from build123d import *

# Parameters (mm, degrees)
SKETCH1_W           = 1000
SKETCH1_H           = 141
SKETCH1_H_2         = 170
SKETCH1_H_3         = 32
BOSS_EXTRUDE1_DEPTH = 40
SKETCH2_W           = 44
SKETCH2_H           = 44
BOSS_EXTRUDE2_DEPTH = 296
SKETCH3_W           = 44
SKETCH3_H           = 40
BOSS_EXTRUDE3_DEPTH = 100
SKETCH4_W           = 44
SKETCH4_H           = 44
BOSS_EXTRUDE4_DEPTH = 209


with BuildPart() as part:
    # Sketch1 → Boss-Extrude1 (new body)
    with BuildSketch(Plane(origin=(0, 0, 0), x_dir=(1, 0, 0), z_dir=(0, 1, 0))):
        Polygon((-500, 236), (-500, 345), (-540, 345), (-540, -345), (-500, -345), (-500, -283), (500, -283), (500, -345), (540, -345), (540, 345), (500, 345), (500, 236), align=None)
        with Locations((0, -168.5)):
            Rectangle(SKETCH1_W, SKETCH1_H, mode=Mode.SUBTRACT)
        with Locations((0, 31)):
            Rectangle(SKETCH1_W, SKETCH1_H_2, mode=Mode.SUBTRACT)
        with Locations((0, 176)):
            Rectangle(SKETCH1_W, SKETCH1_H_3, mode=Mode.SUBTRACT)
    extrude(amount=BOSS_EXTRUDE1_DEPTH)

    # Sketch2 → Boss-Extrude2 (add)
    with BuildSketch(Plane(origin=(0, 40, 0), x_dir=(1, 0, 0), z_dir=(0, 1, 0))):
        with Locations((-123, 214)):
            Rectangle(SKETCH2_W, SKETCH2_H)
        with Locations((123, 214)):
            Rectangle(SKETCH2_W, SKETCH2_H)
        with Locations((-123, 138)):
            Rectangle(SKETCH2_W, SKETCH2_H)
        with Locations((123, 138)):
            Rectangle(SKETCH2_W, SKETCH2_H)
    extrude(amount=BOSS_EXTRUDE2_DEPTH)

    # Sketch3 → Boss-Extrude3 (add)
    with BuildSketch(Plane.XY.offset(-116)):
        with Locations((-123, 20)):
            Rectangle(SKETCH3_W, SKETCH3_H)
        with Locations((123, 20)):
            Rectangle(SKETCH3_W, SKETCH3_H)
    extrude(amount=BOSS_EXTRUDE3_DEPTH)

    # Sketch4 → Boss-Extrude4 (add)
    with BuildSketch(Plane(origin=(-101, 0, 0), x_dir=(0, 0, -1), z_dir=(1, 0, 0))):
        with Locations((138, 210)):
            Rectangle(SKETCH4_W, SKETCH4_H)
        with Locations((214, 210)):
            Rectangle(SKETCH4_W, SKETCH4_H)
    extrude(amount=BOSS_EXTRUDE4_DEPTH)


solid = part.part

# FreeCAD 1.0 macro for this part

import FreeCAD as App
import Part
import Sketcher
Q = App.Units.Quantity


def add_polygon(sketch, points):
    """Adds a closed chain of lines whose ends are joined by coincident constraints."""
    first, n = sketch.GeometryCount, len(points)
    for a, b in zip(points, points[1:] + points[:1]):
        sketch.addGeometry(Part.LineSegment(App.Vector(*a, 0), App.Vector(*b, 0)), False)
    for i in range(n):
        sketch.addConstraint(Sketcher.Constraint("Coincident", first + i, 2, first + (i + 1) % n, 1))

doc = App.newDocument("Part")
body = doc.addObject("PartDesign::Body", "Body")

sketch1 = body.newObject("Sketcher::SketchObject", "Sketch")
sketch1.AttachmentSupport = (doc.getObject("XZ_Plane"), [""])
sketch1.MapMode = "FlatFace"
add_polygon(sketch1, [(-500, -236), (-500, -345), (-540, -345), (-540, 345), (-500, 345), (-500, 283), (500, 283), (500, 345), (540, 345), (540, -345), (500, -345), (500, -236)])
add_polygon(sketch1, [(500, 239), (-500, 239), (-500, 98), (500, 98)])
add_polygon(sketch1, [(500, 54), (-500, 54), (-500, -116), (500, -116)])
add_polygon(sketch1, [(500, -160), (-500, -160), (-500, -192), (500, -192)])
sketch1.addConstraint([
    Sketcher.Constraint("Vertical", 0),
    Sketcher.Constraint("Horizontal", 1),
    Sketcher.Constraint("Vertical", 2),
    Sketcher.Constraint("Horizontal", 3),
    Sketcher.Constraint("Vertical", 4),
    Sketcher.Constraint("Horizontal", 5),
    Sketcher.Constraint("Vertical", 6),
    Sketcher.Constraint("Horizontal", 7),
    Sketcher.Constraint("Vertical", 8),
    Sketcher.Constraint("Horizontal", 9),
    Sketcher.Constraint("Vertical", 10),
    Sketcher.Constraint("Horizontal", 11),
    Sketcher.Constraint("Horizontal", 12),
    Sketcher.Constraint("Vertical", 13),
    Sketcher.Constraint("Horizontal", 14),
    Sketcher.Constraint("Vertical", 15),
    Sketcher.Constraint("Horizontal", 16),
    Sketcher.Constraint("Vertical", 17),
    Sketcher.Constraint("Horizontal", 18),
    Sketcher.Constraint("Vertical", 19),
    Sketcher.Constraint("Horizontal", 20),
    Sketcher.Constraint("Vertical", 21),
    Sketcher.Constraint("Horizontal", 22),
    Sketcher.Constraint("Vertical", 23),
    Sketcher.Constraint("Symmetric", 0, 2, 6, 2, -1, 1),
    Sketcher.Constraint("Symmetric", 2, 2, 8, 2, -1, 1),
    Sketcher.Constraint("Symmetric", 3, 2, 6, 2, -2),
    Sketcher.Constraint("Vertical", 6, 2, 9, 2),
    Sketcher.Constraint("Vertical", 11, 2, 12, 2),
    Sketcher.Constraint("Vertical", 10, 2, 14, 2),
    Sketcher.Constraint("Vertical", 13, 2, 16, 2),
    Sketcher.Constraint("Vertical", 15, 2, 18, 2),
    Sketcher.Constraint("Vertical", 17, 2, 20, 2),
    Sketcher.Constraint("Vertical", 19, 2, 22, 2),
    Sketcher.Constraint("DistanceX", 1, 2, 1, 1, Q("40 mm")),
    Sketcher.Constraint("DistanceX", 5, 1, 5, 2, Q("1000 mm")),
    Sketcher.Constraint("DistanceY", 0, 2, 0, 1, Q("109 mm")),
    Sketcher.Constraint("DistanceY", 2, 1, 2, 2, Q("690 mm")),
    Sketcher.Constraint("DistanceY", 4, 2, 4, 1, Q("62 mm")),
    Sketcher.Constraint("DistanceY", 13, 2, 13, 1, Q("141 mm")),
    Sketcher.Constraint("DistanceY", 17, 2, 17, 1, Q("170 mm")),
    Sketcher.Constraint("DistanceY", 21, 2, 21, 1, Q("32 mm")),
    Sketcher.Constraint("DistanceY", -1, 1, 12, 2, Q("239 mm")),
    Sketcher.Constraint("DistanceY", -1, 1, 16, 2, Q("54 mm")),
    Sketcher.Constraint("DistanceY", 20, 2, -1, 1, Q("160 mm")),
])
pad1 = body.newObject("PartDesign::Pad", "Pad")
pad1.Profile = sketch1
pad1.Length = 40
pad1.Reversed = True

sketch2 = body.newObject("Sketcher::SketchObject", "Sketch001")
sketch2.AttachmentSupport = (doc.getObject("XZ_Plane"), [""])
sketch2.MapMode = "FlatFace"
sketch2.AttachmentOffset = App.Placement(App.Vector(0, 0, -40), App.Rotation())
add_polygon(sketch2, [(-145, -236), (-145, -192), (-101, -192), (-101, -236)])
add_polygon(sketch2, [(101, -236), (101, -192), (145, -192), (145, -236)])
add_polygon(sketch2, [(-145, -160), (-145, -116), (-101, -116), (-101, -160)])
add_polygon(sketch2, [(101, -160), (101, -116), (145, -116), (145, -160)])
sketch2.addConstraint([
    Sketcher.Constraint("Vertical", 0),
    Sketcher.Constraint("Horizontal", 1),
    Sketcher.Constraint("Vertical", 2),
    Sketcher.Constraint("Horizontal", 3),
    Sketcher.Constraint("Vertical", 4),
    Sketcher.Constraint("Horizontal", 5),
    Sketcher.Constraint("Vertical", 6),
    Sketcher.Constraint("Horizontal", 7),
    Sketcher.Constraint("Vertical", 8),
    Sketcher.Constraint("Horizontal", 9),
    Sketcher.Constraint("Vertical", 10),
    Sketcher.Constraint("Horizontal", 11),
    Sketcher.Constraint("Vertical", 12),
    Sketcher.Constraint("Horizontal", 13),
    Sketcher.Constraint("Vertical", 14),
    Sketcher.Constraint("Horizontal", 15),
    Sketcher.Constraint("Symmetric", 1, 2, 4, 2, -2),
    Sketcher.Constraint("Symmetric", 3, 2, 6, 2, -2),
    Sketcher.Constraint("Symmetric", 9, 2, 12, 2, -2),
    Sketcher.Constraint("Symmetric", 11, 2, 14, 2, -2),
    Sketcher.Constraint("Vertical", 3, 2, 8, 2),
    Sketcher.Constraint("Vertical", 2, 2, 9, 2),
    Sketcher.Constraint("Equal", 15, 0),
    Sketcher.Constraint("Equal", 6, 8),
    Sketcher.Constraint("DistanceX", 1, 1, 1, 2, Q("44 mm")),
    Sketcher.Constraint("DistanceX", 0, 2, -1, 1, Q("145 mm")),
    Sketcher.Constraint("DistanceY", 0, 2, -1, 1, Q("192 mm")),
    Sketcher.Constraint("DistanceY", 8, 2, -1, 1, Q("116 mm")),
])
pad2 = body.newObject("PartDesign::Pad", "Pad001")
pad2.Profile = sketch2
pad2.Length = 296
pad2.Reversed = True

sketch3 = body.newObject("Sketcher::SketchObject", "Sketch002")
sketch3.AttachmentSupport = (doc.getObject("XY_Plane"), [""])
sketch3.MapMode = "FlatFace"
sketch3.AttachmentOffset = App.Placement(App.Vector(0, 0, -116), App.Rotation())
add_polygon(sketch3, [(-145, 40), (-145, 0), (-101, 0), (-101, 40)])
add_polygon(sketch3, [(101, 40), (101, 0), (145, 0), (145, 40)])
sketch3.addConstraint([
    Sketcher.Constraint("Vertical", 0),
    Sketcher.Constraint("Horizontal", 1),
    Sketcher.Constraint("Vertical", 2),
    Sketcher.Constraint("Horizontal", 3),
    Sketcher.Constraint("Vertical", 4),
    Sketcher.Constraint("Horizontal", 5),
    Sketcher.Constraint("Vertical", 6),
    Sketcher.Constraint("Horizontal", 7),
    Sketcher.Constraint("Symmetric", 1, 2, 4, 2, -1, 1),
    Sketcher.Constraint("Symmetric", 0, 2, 5, 2, -2),
    Sketcher.Constraint("Horizontal", 3, 2, 6, 2),
    Sketcher.Constraint("DistanceX", 1, 1, 1, 2, Q("44 mm")),
    Sketcher.Constraint("DistanceY", 0, 2, 0, 1, Q("40 mm")),
    Sketcher.Constraint("DistanceX", 0, 2, -1, 1, Q("145 mm")),
])
pad3 = body.newObject("PartDesign::Pad", "Pad002")
pad3.Profile = sketch3
pad3.Length = 100

sketch4 = body.newObject("Sketcher::SketchObject", "Sketch003")
sketch4.AttachmentSupport = (doc.getObject("YZ_Plane"), [""])
sketch4.MapMode = "FlatFace"
sketch4.AttachmentOffset = App.Placement(App.Vector(0, 0, -101), App.Rotation())
add_polygon(sketch4, [(232, -116), (188, -116), (188, -160), (232, -160)])
add_polygon(sketch4, [(232, -192), (188, -192), (188, -236), (232, -236)])
sketch4.addConstraint([
    Sketcher.Constraint("Horizontal", 0),
    Sketcher.Constraint("Vertical", 1),
    Sketcher.Constraint("Horizontal", 2),
    Sketcher.Constraint("Vertical", 3),
    Sketcher.Constraint("Horizontal", 4),
    Sketcher.Constraint("Vertical", 5),
    Sketcher.Constraint("Horizontal", 6),
    Sketcher.Constraint("Vertical", 7),
    Sketcher.Constraint("Vertical", 1, 2, 4, 2),
    Sketcher.Constraint("Vertical", 3, 2, 6, 2),
    Sketcher.Constraint("Equal", 6, 1),
    Sketcher.Constraint("Equal", 3, 5),
    Sketcher.Constraint("DistanceX", 0, 2, 0, 1, Q("44 mm")),
    Sketcher.Constraint("DistanceX", -1, 1, 0, 2, Q("188 mm")),
    Sketcher.Constraint("DistanceY", 0, 2, -1, 1, Q("116 mm")),
    Sketcher.Constraint("DistanceY", 4, 2, -1, 1, Q("192 mm")),
])
pad4 = body.newObject("PartDesign::Pad", "Pad003")
pad4.Profile = sketch4
pad4.Length = 209

doc.recompute()
